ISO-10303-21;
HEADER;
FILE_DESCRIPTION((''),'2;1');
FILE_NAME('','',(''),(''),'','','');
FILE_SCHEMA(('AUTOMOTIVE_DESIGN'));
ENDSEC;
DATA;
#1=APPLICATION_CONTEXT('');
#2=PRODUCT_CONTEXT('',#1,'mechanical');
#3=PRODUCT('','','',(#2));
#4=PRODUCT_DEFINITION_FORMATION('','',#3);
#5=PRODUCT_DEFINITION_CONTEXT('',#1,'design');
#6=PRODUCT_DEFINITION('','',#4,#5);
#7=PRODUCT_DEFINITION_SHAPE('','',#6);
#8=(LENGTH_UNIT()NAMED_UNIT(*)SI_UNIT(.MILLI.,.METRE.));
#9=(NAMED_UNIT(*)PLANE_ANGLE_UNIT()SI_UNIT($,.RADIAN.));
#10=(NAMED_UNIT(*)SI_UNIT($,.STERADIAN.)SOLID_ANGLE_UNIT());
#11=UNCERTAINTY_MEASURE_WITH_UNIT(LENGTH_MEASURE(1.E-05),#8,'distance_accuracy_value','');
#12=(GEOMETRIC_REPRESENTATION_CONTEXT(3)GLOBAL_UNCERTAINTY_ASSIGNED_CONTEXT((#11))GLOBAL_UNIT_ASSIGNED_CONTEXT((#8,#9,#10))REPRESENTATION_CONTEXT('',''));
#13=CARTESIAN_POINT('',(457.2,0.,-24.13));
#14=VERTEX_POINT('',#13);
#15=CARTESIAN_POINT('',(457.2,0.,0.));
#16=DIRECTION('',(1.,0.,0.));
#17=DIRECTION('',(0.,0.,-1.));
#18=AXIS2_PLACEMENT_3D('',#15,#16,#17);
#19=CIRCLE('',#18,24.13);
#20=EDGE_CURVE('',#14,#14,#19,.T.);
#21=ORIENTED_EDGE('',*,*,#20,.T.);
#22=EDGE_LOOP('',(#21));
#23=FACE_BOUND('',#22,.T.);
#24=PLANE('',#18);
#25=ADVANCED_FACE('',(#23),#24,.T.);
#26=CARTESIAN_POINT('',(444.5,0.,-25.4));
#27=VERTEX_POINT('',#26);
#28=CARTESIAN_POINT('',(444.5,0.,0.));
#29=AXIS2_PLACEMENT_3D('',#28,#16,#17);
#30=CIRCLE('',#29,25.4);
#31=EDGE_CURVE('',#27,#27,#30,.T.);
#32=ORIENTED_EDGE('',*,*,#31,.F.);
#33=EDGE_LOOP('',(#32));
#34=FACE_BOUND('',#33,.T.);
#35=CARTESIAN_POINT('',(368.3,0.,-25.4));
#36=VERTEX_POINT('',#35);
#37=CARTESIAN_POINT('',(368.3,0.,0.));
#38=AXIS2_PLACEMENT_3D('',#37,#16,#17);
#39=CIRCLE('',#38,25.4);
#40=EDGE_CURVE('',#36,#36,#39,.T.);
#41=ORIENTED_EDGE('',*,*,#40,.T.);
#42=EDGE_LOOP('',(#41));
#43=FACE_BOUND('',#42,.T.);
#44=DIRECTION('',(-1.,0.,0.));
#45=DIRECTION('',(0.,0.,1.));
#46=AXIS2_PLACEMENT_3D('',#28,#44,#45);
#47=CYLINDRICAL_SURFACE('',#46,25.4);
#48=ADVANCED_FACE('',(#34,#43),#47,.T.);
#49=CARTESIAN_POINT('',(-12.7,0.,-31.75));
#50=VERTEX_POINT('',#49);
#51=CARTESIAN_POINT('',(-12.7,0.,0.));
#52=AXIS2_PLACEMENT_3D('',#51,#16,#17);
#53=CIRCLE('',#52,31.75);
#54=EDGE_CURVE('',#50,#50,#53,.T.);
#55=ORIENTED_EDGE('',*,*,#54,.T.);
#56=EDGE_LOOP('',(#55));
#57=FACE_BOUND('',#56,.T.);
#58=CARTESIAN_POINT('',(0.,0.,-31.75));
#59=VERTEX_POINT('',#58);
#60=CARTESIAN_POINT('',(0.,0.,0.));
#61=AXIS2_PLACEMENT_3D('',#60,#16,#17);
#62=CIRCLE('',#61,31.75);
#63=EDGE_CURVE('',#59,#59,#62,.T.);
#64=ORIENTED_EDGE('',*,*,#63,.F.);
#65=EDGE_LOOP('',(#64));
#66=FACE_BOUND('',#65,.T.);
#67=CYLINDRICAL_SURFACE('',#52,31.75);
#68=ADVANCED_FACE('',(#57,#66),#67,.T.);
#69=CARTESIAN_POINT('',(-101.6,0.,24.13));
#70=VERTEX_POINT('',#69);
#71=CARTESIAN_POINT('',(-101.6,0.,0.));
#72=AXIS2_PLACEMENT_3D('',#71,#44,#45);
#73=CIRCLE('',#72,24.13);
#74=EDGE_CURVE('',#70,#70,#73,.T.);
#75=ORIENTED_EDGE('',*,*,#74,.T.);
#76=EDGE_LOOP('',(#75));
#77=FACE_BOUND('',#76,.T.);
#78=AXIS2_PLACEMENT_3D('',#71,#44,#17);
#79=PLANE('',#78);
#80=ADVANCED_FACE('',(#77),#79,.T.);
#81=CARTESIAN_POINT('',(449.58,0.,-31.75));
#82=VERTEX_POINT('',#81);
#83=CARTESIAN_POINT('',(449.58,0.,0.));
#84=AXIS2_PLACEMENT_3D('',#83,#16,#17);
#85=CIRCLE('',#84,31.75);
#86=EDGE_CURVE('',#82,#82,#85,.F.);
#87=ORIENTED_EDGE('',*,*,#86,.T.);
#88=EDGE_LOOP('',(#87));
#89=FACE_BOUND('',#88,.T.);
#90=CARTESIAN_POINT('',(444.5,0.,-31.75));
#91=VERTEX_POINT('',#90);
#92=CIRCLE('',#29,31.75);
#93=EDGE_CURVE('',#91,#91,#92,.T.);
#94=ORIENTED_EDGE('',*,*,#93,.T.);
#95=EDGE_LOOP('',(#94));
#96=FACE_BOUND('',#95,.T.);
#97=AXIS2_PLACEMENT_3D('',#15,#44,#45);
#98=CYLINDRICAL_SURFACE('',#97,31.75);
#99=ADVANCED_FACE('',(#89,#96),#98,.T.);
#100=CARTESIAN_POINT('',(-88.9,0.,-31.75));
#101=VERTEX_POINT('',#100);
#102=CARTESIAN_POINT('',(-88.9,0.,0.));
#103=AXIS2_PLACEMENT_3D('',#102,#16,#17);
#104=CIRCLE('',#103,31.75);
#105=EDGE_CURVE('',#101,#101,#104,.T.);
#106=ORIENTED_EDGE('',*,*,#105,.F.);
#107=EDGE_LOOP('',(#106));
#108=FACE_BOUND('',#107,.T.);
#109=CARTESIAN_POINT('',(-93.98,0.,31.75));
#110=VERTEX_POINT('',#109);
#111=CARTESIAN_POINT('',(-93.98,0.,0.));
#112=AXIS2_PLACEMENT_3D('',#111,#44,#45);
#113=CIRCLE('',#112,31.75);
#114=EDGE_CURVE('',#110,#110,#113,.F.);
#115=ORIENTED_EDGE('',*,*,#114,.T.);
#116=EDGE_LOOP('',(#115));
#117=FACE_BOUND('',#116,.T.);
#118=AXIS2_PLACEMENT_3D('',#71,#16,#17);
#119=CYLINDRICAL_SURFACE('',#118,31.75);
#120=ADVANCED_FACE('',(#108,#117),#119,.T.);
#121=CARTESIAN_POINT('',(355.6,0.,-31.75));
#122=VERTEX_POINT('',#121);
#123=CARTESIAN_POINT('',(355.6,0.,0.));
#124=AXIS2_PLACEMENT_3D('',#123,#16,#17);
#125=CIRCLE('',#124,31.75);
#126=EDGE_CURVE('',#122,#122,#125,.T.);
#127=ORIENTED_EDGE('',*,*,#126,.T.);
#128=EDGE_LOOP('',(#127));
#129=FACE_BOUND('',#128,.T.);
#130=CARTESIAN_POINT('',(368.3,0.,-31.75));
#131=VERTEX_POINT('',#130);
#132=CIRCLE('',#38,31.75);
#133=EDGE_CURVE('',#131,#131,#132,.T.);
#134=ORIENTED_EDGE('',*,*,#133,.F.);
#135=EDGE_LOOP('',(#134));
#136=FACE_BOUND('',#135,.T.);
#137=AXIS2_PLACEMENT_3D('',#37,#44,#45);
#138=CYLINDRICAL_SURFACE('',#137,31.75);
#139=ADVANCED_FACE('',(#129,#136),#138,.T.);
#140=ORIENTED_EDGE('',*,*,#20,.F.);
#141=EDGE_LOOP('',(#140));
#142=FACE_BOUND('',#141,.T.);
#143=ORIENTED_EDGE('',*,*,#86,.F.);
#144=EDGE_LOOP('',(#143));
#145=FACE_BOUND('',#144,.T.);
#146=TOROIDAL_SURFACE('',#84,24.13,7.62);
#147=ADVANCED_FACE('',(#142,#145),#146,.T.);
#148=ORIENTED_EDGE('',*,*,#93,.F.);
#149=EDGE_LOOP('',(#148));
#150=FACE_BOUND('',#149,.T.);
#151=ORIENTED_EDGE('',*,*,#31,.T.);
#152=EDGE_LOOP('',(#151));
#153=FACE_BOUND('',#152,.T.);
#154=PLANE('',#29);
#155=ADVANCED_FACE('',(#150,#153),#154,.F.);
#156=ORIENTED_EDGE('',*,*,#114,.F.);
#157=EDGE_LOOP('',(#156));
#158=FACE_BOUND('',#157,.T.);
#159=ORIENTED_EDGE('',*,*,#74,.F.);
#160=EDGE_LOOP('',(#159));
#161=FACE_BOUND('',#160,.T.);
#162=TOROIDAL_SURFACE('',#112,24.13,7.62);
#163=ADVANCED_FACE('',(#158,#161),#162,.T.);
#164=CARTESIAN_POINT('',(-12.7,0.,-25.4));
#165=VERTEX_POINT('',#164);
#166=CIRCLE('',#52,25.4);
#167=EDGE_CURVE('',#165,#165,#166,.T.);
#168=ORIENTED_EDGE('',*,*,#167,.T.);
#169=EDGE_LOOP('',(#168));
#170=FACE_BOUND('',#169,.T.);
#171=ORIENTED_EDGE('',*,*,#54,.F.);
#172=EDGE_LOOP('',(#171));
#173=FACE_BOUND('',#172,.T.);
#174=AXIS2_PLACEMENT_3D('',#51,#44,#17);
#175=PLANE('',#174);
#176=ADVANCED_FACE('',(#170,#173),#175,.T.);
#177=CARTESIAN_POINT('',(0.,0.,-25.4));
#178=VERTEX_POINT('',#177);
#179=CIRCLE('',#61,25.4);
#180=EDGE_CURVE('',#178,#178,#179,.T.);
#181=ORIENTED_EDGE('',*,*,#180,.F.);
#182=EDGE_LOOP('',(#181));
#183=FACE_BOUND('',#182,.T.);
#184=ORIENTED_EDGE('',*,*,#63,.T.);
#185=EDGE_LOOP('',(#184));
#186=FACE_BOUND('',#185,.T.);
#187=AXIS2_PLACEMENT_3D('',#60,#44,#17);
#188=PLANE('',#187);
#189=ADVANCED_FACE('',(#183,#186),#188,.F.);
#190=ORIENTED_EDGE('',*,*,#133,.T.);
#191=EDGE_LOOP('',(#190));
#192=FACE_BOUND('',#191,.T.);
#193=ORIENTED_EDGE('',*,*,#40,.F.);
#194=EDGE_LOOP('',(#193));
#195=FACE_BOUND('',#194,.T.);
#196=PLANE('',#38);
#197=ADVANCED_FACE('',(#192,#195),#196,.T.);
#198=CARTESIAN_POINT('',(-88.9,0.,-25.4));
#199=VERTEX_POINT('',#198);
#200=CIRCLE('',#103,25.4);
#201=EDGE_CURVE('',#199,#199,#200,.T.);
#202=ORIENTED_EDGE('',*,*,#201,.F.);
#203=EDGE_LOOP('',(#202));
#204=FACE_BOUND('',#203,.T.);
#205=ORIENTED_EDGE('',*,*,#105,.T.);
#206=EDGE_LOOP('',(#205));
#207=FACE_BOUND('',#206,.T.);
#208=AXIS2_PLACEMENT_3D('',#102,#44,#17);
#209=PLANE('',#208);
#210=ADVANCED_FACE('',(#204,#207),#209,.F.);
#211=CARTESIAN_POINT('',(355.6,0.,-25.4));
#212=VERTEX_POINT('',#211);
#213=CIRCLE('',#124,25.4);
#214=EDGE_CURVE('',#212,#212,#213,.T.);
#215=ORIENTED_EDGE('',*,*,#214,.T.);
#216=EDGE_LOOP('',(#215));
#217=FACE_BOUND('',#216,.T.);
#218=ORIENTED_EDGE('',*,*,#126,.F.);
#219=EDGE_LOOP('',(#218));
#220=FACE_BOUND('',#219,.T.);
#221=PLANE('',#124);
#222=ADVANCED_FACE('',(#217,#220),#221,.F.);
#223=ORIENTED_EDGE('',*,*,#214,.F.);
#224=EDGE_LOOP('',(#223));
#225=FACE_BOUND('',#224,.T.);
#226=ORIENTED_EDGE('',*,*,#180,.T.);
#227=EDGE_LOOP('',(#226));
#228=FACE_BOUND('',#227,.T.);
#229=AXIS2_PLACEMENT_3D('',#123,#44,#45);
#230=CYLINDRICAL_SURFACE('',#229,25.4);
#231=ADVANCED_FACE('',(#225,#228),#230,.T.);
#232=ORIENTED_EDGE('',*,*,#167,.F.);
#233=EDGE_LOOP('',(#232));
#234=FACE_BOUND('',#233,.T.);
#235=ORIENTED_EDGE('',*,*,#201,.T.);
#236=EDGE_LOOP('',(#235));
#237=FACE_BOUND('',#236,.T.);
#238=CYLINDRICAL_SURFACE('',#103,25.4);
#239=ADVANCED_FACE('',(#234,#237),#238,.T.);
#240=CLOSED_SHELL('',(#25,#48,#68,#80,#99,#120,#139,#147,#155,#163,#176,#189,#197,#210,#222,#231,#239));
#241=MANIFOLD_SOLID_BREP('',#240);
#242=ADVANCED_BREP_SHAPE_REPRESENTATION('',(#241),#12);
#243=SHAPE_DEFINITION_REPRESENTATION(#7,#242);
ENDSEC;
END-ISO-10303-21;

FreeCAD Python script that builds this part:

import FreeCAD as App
import Part
import Sketcher

V = App.Vector
Q = App.Units.Quantity


def edges_at(feature, points):
    """Names of the edges that pass closest to the given points."""
    edges = feature.Shape.Edges
    near = lambda p: min(range(len(edges)), key=lambda i: edges[i].distToShape(Part.Vertex(*p))[0])
    return sorted({f"Edge{near(p) + 1}" for p in points})

doc = App.newDocument("Part")
params = doc.addObject("Spreadsheet::Sheet", "Params")
for row, (alias, value) in enumerate([
    ("sketch1_diameter", "2 in"),
    ("pad1_length", "14 in"),
    ("sketch2_diameter", "2.5 in"),
    ("pad2_length", "0.5 in"),
    ("sketch3_diameter", "2 in"),
    ("pad3_length", "3 in"),
    ("sketch4_diameter", "2.5 in"),
    ("pad4_length", "0.5 in"),
    ("fillet_radius", "0.3 in"),
    ("fillet2_radius", "0.3 in"),
], start=1):
    params.set(f"A{row}", alias)
    params.set(f"B{row}", "=" + value)
    params.setAlias(f"B{row}", alias)

body = doc.addObject("PartDesign::Body", "Body")

sketch1 = body.newObject("Sketcher::SketchObject", "Sketch")
sketch1.AttachmentSupport = (doc.getObject("YZ_Plane"), [""])
sketch1.MapMode = "FlatFace"
sketch1.addGeometry(Part.Circle(V(0, 0, 0), V(0, 0, 1), 25.4), False)
sketch1.addConstraint([
    Sketcher.Constraint("Coincident", 0, 3, -1, 1),
    Sketcher.Constraint("Diameter", 0, Q("2 in")),
])
sketch1.setExpression("Constraints[1]", "Params.sketch1_diameter")
pad1 = body.newObject("PartDesign::Pad", "Pad")
pad1.Profile = sketch1
pad1.setExpression("Length", "Params.pad1_length")

sketch2 = body.newObject("Sketcher::SketchObject", "Sketch001")
sketch2.AttachmentSupport = (doc.getObject("YZ_Plane"), [""])
sketch2.MapMode = "FlatFace"
sketch2.AttachmentOffset = App.Placement(V(0, 0, 14 * 25.4), App.Rotation())
sketch2.addGeometry(Part.Circle(V(0, 0, 0), V(0, 0, 1), 31.75), False)
sketch2.addConstraint([
    Sketcher.Constraint("Coincident", 0, 3, -1, 1),
    Sketcher.Constraint("Diameter", 0, Q("2.5 in")),
])
sketch2.setExpression("Constraints[1]", "Params.sketch2_diameter")
pad2 = body.newObject("PartDesign::Pad", "Pad001")
pad2.Profile = sketch2
pad2.setExpression("Length", "Params.pad2_length")

sketch3 = body.newObject("Sketcher::SketchObject", "Sketch002")
sketch3.AttachmentSupport = (doc.getObject("YZ_Plane"), [""])
sketch3.MapMode = "FlatFace"
sketch3.AttachmentOffset = App.Placement(V(0, 0, 14.5 * 25.4), App.Rotation())
sketch3.addGeometry(Part.Circle(V(0, 0, 0), V(0, 0, 1), 25.4), False)
sketch3.addConstraint([
    Sketcher.Constraint("Coincident", 0, 3, -1, 1),
    Sketcher.Constraint("Diameter", 0, Q("2 in")),
])
sketch3.setExpression("Constraints[1]", "Params.sketch3_diameter")
pad3 = body.newObject("PartDesign::Pad", "Pad002")
pad3.Profile = sketch3
pad3.setExpression("Length", "Params.pad3_length")

sketch4 = body.newObject("Sketcher::SketchObject", "Sketch003")
sketch4.AttachmentSupport = (doc.getObject("YZ_Plane"), [""])
sketch4.MapMode = "FlatFace"
sketch4.AttachmentOffset = App.Placement(V(0, 0, 17.5 * 25.4), App.Rotation())
sketch4.addGeometry(Part.Circle(V(0, 0, 0), V(0, 0, 1), 31.75), False)
sketch4.addConstraint([
    Sketcher.Constraint("Coincident", 0, 3, -1, 1),
    Sketcher.Constraint("Diameter", 0, Q("2.5 in")),
])
sketch4.setExpression("Constraints[1]", "Params.sketch4_diameter")
pad4 = body.newObject("PartDesign::Pad", "Pad003")
pad4.Profile = sketch4
pad4.setExpression("Length", "Params.pad4_length")
doc.recompute()

datumplane = body.newObject("PartDesign::Plane", "DatumPlane")
datumplane.AttachmentSupport = (doc.getObject("YZ_Plane"), [""])
datumplane.MapMode = "FlatFace"
datumplane.AttachmentOffset = App.Placement(V(0, 0, 7 * 25.4), App.Rotation())
mirrored = body.newObject("PartDesign::Mirrored", "Mirrored")
mirrored.Originals = [pad2, pad3, pad4]
mirrored.MirrorPlane = (datumplane, [""])
body.Tip = mirrored
doc.recompute()

fillet = body.newObject("PartDesign::Fillet", "Fillet")
fillet.Base = (mirrored, edges_at(mirrored, [(457.2, 0, 31.75)]))
fillet.setExpression("Radius", "Params.fillet_radius")
doc.recompute()

fillet2 = body.newObject("PartDesign::Fillet", "Fillet001")
fillet2.Base = (fillet, edges_at(fillet, [(-101.6, 0, 31.75)]))
fillet2.setExpression("Radius", "Params.fillet2_radius")

doc.recompute()
